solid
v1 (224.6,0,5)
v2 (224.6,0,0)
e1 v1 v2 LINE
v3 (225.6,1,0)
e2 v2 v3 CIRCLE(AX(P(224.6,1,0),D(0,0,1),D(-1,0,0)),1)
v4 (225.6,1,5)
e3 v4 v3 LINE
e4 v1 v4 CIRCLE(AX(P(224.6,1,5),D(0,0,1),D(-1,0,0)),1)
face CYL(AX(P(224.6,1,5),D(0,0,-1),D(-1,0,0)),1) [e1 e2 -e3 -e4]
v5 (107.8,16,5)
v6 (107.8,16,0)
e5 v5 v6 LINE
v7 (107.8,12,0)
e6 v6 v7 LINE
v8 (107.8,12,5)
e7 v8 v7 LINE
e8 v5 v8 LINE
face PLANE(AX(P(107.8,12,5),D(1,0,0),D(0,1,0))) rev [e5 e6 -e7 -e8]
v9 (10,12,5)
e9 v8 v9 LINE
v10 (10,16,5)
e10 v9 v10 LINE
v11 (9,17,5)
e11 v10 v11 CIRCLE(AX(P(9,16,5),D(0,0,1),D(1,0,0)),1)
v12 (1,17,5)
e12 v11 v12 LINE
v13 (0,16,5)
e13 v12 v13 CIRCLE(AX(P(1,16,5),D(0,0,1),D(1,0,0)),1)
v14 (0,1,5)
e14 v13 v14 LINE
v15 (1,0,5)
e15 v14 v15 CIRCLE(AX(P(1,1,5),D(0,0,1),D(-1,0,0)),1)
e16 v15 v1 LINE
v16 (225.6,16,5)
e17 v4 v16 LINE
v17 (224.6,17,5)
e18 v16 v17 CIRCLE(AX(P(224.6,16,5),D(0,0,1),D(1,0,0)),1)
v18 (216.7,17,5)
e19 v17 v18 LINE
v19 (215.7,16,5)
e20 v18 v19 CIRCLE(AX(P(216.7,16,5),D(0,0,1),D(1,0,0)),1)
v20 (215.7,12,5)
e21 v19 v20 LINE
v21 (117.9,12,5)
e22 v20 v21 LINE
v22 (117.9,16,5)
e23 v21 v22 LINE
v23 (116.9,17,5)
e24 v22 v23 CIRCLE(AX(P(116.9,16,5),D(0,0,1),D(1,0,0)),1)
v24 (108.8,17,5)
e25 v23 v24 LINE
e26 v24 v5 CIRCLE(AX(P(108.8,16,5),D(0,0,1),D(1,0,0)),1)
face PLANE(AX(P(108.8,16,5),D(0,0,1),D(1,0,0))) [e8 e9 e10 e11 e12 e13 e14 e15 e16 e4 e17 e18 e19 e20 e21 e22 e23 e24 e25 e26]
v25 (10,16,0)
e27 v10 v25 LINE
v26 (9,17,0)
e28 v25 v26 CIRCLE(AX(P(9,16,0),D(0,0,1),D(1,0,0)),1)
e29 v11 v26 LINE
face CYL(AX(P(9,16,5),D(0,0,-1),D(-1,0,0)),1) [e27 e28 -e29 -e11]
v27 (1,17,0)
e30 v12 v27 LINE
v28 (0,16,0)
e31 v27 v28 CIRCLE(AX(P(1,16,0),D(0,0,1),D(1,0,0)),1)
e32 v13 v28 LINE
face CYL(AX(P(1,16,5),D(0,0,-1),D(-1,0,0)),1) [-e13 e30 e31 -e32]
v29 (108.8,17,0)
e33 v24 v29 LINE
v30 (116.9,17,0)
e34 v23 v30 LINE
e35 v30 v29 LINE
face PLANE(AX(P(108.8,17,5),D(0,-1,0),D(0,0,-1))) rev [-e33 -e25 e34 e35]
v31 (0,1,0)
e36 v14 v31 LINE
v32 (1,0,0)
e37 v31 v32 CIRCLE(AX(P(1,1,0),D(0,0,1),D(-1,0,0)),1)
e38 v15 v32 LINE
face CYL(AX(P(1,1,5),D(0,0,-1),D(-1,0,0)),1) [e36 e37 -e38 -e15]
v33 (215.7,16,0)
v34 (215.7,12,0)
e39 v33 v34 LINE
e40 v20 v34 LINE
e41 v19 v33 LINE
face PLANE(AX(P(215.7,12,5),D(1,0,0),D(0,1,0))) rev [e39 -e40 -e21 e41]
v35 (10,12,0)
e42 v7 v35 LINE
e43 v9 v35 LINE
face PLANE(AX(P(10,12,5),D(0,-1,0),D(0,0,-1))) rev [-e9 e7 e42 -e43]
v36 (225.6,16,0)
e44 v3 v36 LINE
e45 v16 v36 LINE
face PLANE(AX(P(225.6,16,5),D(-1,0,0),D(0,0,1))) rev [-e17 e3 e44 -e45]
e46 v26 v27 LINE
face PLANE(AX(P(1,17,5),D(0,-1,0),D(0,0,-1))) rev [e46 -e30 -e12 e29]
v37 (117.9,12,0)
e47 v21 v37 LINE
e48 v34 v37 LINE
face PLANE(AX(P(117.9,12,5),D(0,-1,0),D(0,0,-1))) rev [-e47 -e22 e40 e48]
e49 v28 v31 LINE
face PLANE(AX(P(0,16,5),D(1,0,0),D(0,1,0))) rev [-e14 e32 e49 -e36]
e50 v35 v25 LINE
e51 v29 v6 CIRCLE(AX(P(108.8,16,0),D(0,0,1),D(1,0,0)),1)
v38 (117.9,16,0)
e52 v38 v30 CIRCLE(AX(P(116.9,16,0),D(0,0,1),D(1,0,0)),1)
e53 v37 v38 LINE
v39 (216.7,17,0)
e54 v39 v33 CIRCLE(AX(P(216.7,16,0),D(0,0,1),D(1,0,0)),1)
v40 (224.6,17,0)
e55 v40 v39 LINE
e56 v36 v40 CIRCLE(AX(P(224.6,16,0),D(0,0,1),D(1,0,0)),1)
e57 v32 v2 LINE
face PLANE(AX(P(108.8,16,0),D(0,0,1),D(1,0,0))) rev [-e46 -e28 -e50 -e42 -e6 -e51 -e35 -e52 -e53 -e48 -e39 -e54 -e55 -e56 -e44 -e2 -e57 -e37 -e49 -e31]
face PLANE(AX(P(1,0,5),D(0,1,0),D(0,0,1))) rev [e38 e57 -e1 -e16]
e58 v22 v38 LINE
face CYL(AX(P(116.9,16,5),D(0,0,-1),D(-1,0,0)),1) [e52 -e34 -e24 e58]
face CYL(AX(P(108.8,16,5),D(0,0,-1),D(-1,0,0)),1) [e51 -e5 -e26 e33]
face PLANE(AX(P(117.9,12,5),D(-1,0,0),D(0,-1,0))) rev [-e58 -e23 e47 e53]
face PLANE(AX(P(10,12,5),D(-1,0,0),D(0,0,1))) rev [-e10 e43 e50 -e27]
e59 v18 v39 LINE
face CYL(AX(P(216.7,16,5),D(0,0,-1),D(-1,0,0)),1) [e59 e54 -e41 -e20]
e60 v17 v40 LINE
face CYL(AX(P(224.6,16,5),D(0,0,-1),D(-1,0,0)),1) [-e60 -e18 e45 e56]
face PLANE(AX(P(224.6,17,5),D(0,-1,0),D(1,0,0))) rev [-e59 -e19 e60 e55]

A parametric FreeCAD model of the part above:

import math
import FreeCAD as App
import Part
import Sketcher

doc = App.newDocument("Part")
body = doc.addObject("PartDesign::Body", "Body")

sketch1 = body.newObject("Sketcher::SketchObject", "Sketch")
sketch1.AttachmentSupport = (doc.getObject("XY_Plane"), [""])
sketch1.MapMode = "FlatFace"
sketch1.addGeometry(Part.LineSegment(App.Vector(215.7, 12, 0), App.Vector(117.9, 12, 0)), False)
sketch1.addGeometry(Part.LineSegment(App.Vector(117.9, 12, 0), App.Vector(117.9, 16, 0)), False)
sketch1.addGeometry(Part.ArcOfCircle(Part.Circle(App.Vector(116.9, 16, 0), App.Vector(0, 0, 1), 1), math.radians(0), math.radians(90)), False)
sketch1.addGeometry(Part.LineSegment(App.Vector(116.9, 17, 0), App.Vector(108.8, 17, 0)), False)
sketch1.addGeometry(Part.ArcOfCircle(Part.Circle(App.Vector(108.8, 16, 0), App.Vector(0, 0, 1), 1), math.radians(90), math.radians(180)), False)
sketch1.addGeometry(Part.LineSegment(App.Vector(107.8, 16, 0), App.Vector(107.8, 12, 0)), False)
sketch1.addGeometry(Part.LineSegment(App.Vector(107.8, 12, 0), App.Vector(10, 12, 0)), False)
sketch1.addGeometry(Part.LineSegment(App.Vector(10, 12, 0), App.Vector(10, 16, 0)), False)
sketch1.addGeometry(Part.ArcOfCircle(Part.Circle(App.Vector(9, 16, 0), App.Vector(0, 0, 1), 1), math.radians(0), math.radians(90)), False)
sketch1.addGeometry(Part.LineSegment(App.Vector(9, 17, 0), App.Vector(1, 17, 0)), False)
sketch1.addGeometry(Part.ArcOfCircle(Part.Circle(App.Vector(1, 16, 0), App.Vector(0, 0, 1), 1), math.radians(90), math.radians(180)), False)
sketch1.addGeometry(Part.LineSegment(App.Vector(0, 16, 0), App.Vector(0, 1, 0)), False)
sketch1.addGeometry(Part.ArcOfCircle(Part.Circle(App.Vector(1, 1, 0), App.Vector(0, 0, 1), 1), math.radians(-180), math.radians(-90)), False)
sketch1.addGeometry(Part.LineSegment(App.Vector(1, 0, 0), App.Vector(224.6, 0, 0)), False)
sketch1.addGeometry(Part.ArcOfCircle(Part.Circle(App.Vector(224.6, 1, 0), App.Vector(0, 0, 1), 1), math.radians(-90), math.radians(0)), False)
sketch1.addGeometry(Part.LineSegment(App.Vector(225.6, 1, 0), App.Vector(225.6, 16, 0)), False)
sketch1.addGeometry(Part.ArcOfCircle(Part.Circle(App.Vector(224.6, 16, 0), App.Vector(0, 0, 1), 1), math.radians(0), math.radians(90)), False)
sketch1.addGeometry(Part.LineSegment(App.Vector(224.6, 17, 0), App.Vector(216.7, 17, 0)), False)
sketch1.addGeometry(Part.ArcOfCircle(Part.Circle(App.Vector(216.7, 16, 0), App.Vector(0, 0, 1), 1), math.radians(90), math.radians(180)), False)
sketch1.addGeometry(Part.LineSegment(App.Vector(215.7, 16, 0), App.Vector(215.7, 12, 0)), False)
sketch1.addConstraint(Sketcher.Constraint("Coincident", 0, 2, 1, 1))
sketch1.addConstraint(Sketcher.Constraint("Tangent", 1, 2, 2, 1))
sketch1.addConstraint(Sketcher.Constraint("Tangent", 2, 2, 3, 1))
sketch1.addConstraint(Sketcher.Constraint("Tangent", 3, 2, 4, 1))
sketch1.addConstraint(Sketcher.Constraint("Tangent", 4, 2, 5, 1))
sketch1.addConstraint(Sketcher.Constraint("Coincident", 5, 2, 6, 1))
sketch1.addConstraint(Sketcher.Constraint("Coincident", 6, 2, 7, 1))
sketch1.addConstraint(Sketcher.Constraint("Tangent", 7, 2, 8, 1))
sketch1.addConstraint(Sketcher.Constraint("Tangent", 8, 2, 9, 1))
sketch1.addConstraint(Sketcher.Constraint("Tangent", 9, 2, 10, 1))
sketch1.addConstraint(Sketcher.Constraint("Tangent", 10, 2, 11, 1))
sketch1.addConstraint(Sketcher.Constraint("Tangent", 11, 2, 12, 1))
sketch1.addConstraint(Sketcher.Constraint("Tangent", 12, 2, 13, 1))
sketch1.addConstraint(Sketcher.Constraint("Tangent", 13, 2, 14, 1))
sketch1.addConstraint(Sketcher.Constraint("Tangent", 14, 2, 15, 1))
sketch1.addConstraint(Sketcher.Constraint("Tangent", 15, 2, 16, 1))
sketch1.addConstraint(Sketcher.Constraint("Tangent", 16, 2, 17, 1))
sketch1.addConstraint(Sketcher.Constraint("Tangent", 17, 2, 18, 1))
sketch1.addConstraint(Sketcher.Constraint("Tangent", 18, 2, 19, 1))
sketch1.addConstraint(Sketcher.Constraint("Coincident", 19, 2, 0, 1))
sketch1.addConstraint(Sketcher.Constraint("Horizontal", 0))
sketch1.addConstraint(Sketcher.Constraint("Vertical", 1))
sketch1.addConstraint(Sketcher.Constraint("Horizontal", 3))
sketch1.addConstraint(Sketcher.Constraint("Vertical", 5))
sketch1.addConstraint(Sketcher.Constraint("Horizontal", 6))
sketch1.addConstraint(Sketcher.Constraint("Vertical", 7))
sketch1.addConstraint(Sketcher.Constraint("Horizontal", 9))
sketch1.addConstraint(Sketcher.Constraint("Vertical", 11))
sketch1.addConstraint(Sketcher.Constraint("Horizontal", 13))
sketch1.addConstraint(Sketcher.Constraint("Vertical", 15))
sketch1.addConstraint(Sketcher.Constraint("Horizontal", 17))
sketch1.addConstraint(Sketcher.Constraint("Vertical", 19))
sketch1.addConstraint(Sketcher.Constraint("Equal", 2, 4))
sketch1.addConstraint(Sketcher.Constraint("Equal", 4, 8))
sketch1.addConstraint(Sketcher.Constraint("Equal", 8, 10))
sketch1.addConstraint(Sketcher.Constraint("Equal", 10, 12))
sketch1.addConstraint(Sketcher.Constraint("Equal", 12, 14))
sketch1.addConstraint(Sketcher.Constraint("Equal", 14, 16))
sketch1.addConstraint(Sketcher.Constraint("Equal", 16, 18))
sketch1.addConstraint(Sketcher.Constraint("PointOnObject", 10, 2, -2))
sketch1.addConstraint(Sketcher.Constraint("PointOnObject", 12, 2, -1))
sketch1.addConstraint(Sketcher.Constraint("Horizontal", 4, 3, 8, 3))
sketch1.addConstraint(Sketcher.Constraint("Horizontal", 10, 3, 16, 3))
sketch1.addConstraint(Sketcher.Constraint("Horizontal", 0, 2, 5, 2))
sketch1.addConstraint(Sketcher.Constraint("Equal", 0, 6))
sketch1.addConstraint(Sketcher.Constraint("Radius", 2, 1.0))
sketch1.addConstraint(Sketcher.Constraint("DistanceX", 9, 2, 9, 1, 8.0))
sketch1.addConstraint(Sketcher.Constraint("DistanceY", 1, 1, 1, 2, 4.0))
sketch1.addConstraint(Sketcher.Constraint("DistanceY", 11, 2, 11, 1, 15.0))
sketch1.addConstraint(Sketcher.Constraint("DistanceX", 0, 2, 0, 1, 97.8))
sketch1.addConstraint(Sketcher.Constraint("DistanceX", 3, 2, 3, 1, 8.1))
sketch1.addConstraint(Sketcher.Constraint("DistanceX", 13, 1, 13, 2, 223.6))
pad1 = body.newObject("PartDesign::Pad", "Pad")
pad1.Profile = sketch1
pad1.Length = 5

doc.recompute()
